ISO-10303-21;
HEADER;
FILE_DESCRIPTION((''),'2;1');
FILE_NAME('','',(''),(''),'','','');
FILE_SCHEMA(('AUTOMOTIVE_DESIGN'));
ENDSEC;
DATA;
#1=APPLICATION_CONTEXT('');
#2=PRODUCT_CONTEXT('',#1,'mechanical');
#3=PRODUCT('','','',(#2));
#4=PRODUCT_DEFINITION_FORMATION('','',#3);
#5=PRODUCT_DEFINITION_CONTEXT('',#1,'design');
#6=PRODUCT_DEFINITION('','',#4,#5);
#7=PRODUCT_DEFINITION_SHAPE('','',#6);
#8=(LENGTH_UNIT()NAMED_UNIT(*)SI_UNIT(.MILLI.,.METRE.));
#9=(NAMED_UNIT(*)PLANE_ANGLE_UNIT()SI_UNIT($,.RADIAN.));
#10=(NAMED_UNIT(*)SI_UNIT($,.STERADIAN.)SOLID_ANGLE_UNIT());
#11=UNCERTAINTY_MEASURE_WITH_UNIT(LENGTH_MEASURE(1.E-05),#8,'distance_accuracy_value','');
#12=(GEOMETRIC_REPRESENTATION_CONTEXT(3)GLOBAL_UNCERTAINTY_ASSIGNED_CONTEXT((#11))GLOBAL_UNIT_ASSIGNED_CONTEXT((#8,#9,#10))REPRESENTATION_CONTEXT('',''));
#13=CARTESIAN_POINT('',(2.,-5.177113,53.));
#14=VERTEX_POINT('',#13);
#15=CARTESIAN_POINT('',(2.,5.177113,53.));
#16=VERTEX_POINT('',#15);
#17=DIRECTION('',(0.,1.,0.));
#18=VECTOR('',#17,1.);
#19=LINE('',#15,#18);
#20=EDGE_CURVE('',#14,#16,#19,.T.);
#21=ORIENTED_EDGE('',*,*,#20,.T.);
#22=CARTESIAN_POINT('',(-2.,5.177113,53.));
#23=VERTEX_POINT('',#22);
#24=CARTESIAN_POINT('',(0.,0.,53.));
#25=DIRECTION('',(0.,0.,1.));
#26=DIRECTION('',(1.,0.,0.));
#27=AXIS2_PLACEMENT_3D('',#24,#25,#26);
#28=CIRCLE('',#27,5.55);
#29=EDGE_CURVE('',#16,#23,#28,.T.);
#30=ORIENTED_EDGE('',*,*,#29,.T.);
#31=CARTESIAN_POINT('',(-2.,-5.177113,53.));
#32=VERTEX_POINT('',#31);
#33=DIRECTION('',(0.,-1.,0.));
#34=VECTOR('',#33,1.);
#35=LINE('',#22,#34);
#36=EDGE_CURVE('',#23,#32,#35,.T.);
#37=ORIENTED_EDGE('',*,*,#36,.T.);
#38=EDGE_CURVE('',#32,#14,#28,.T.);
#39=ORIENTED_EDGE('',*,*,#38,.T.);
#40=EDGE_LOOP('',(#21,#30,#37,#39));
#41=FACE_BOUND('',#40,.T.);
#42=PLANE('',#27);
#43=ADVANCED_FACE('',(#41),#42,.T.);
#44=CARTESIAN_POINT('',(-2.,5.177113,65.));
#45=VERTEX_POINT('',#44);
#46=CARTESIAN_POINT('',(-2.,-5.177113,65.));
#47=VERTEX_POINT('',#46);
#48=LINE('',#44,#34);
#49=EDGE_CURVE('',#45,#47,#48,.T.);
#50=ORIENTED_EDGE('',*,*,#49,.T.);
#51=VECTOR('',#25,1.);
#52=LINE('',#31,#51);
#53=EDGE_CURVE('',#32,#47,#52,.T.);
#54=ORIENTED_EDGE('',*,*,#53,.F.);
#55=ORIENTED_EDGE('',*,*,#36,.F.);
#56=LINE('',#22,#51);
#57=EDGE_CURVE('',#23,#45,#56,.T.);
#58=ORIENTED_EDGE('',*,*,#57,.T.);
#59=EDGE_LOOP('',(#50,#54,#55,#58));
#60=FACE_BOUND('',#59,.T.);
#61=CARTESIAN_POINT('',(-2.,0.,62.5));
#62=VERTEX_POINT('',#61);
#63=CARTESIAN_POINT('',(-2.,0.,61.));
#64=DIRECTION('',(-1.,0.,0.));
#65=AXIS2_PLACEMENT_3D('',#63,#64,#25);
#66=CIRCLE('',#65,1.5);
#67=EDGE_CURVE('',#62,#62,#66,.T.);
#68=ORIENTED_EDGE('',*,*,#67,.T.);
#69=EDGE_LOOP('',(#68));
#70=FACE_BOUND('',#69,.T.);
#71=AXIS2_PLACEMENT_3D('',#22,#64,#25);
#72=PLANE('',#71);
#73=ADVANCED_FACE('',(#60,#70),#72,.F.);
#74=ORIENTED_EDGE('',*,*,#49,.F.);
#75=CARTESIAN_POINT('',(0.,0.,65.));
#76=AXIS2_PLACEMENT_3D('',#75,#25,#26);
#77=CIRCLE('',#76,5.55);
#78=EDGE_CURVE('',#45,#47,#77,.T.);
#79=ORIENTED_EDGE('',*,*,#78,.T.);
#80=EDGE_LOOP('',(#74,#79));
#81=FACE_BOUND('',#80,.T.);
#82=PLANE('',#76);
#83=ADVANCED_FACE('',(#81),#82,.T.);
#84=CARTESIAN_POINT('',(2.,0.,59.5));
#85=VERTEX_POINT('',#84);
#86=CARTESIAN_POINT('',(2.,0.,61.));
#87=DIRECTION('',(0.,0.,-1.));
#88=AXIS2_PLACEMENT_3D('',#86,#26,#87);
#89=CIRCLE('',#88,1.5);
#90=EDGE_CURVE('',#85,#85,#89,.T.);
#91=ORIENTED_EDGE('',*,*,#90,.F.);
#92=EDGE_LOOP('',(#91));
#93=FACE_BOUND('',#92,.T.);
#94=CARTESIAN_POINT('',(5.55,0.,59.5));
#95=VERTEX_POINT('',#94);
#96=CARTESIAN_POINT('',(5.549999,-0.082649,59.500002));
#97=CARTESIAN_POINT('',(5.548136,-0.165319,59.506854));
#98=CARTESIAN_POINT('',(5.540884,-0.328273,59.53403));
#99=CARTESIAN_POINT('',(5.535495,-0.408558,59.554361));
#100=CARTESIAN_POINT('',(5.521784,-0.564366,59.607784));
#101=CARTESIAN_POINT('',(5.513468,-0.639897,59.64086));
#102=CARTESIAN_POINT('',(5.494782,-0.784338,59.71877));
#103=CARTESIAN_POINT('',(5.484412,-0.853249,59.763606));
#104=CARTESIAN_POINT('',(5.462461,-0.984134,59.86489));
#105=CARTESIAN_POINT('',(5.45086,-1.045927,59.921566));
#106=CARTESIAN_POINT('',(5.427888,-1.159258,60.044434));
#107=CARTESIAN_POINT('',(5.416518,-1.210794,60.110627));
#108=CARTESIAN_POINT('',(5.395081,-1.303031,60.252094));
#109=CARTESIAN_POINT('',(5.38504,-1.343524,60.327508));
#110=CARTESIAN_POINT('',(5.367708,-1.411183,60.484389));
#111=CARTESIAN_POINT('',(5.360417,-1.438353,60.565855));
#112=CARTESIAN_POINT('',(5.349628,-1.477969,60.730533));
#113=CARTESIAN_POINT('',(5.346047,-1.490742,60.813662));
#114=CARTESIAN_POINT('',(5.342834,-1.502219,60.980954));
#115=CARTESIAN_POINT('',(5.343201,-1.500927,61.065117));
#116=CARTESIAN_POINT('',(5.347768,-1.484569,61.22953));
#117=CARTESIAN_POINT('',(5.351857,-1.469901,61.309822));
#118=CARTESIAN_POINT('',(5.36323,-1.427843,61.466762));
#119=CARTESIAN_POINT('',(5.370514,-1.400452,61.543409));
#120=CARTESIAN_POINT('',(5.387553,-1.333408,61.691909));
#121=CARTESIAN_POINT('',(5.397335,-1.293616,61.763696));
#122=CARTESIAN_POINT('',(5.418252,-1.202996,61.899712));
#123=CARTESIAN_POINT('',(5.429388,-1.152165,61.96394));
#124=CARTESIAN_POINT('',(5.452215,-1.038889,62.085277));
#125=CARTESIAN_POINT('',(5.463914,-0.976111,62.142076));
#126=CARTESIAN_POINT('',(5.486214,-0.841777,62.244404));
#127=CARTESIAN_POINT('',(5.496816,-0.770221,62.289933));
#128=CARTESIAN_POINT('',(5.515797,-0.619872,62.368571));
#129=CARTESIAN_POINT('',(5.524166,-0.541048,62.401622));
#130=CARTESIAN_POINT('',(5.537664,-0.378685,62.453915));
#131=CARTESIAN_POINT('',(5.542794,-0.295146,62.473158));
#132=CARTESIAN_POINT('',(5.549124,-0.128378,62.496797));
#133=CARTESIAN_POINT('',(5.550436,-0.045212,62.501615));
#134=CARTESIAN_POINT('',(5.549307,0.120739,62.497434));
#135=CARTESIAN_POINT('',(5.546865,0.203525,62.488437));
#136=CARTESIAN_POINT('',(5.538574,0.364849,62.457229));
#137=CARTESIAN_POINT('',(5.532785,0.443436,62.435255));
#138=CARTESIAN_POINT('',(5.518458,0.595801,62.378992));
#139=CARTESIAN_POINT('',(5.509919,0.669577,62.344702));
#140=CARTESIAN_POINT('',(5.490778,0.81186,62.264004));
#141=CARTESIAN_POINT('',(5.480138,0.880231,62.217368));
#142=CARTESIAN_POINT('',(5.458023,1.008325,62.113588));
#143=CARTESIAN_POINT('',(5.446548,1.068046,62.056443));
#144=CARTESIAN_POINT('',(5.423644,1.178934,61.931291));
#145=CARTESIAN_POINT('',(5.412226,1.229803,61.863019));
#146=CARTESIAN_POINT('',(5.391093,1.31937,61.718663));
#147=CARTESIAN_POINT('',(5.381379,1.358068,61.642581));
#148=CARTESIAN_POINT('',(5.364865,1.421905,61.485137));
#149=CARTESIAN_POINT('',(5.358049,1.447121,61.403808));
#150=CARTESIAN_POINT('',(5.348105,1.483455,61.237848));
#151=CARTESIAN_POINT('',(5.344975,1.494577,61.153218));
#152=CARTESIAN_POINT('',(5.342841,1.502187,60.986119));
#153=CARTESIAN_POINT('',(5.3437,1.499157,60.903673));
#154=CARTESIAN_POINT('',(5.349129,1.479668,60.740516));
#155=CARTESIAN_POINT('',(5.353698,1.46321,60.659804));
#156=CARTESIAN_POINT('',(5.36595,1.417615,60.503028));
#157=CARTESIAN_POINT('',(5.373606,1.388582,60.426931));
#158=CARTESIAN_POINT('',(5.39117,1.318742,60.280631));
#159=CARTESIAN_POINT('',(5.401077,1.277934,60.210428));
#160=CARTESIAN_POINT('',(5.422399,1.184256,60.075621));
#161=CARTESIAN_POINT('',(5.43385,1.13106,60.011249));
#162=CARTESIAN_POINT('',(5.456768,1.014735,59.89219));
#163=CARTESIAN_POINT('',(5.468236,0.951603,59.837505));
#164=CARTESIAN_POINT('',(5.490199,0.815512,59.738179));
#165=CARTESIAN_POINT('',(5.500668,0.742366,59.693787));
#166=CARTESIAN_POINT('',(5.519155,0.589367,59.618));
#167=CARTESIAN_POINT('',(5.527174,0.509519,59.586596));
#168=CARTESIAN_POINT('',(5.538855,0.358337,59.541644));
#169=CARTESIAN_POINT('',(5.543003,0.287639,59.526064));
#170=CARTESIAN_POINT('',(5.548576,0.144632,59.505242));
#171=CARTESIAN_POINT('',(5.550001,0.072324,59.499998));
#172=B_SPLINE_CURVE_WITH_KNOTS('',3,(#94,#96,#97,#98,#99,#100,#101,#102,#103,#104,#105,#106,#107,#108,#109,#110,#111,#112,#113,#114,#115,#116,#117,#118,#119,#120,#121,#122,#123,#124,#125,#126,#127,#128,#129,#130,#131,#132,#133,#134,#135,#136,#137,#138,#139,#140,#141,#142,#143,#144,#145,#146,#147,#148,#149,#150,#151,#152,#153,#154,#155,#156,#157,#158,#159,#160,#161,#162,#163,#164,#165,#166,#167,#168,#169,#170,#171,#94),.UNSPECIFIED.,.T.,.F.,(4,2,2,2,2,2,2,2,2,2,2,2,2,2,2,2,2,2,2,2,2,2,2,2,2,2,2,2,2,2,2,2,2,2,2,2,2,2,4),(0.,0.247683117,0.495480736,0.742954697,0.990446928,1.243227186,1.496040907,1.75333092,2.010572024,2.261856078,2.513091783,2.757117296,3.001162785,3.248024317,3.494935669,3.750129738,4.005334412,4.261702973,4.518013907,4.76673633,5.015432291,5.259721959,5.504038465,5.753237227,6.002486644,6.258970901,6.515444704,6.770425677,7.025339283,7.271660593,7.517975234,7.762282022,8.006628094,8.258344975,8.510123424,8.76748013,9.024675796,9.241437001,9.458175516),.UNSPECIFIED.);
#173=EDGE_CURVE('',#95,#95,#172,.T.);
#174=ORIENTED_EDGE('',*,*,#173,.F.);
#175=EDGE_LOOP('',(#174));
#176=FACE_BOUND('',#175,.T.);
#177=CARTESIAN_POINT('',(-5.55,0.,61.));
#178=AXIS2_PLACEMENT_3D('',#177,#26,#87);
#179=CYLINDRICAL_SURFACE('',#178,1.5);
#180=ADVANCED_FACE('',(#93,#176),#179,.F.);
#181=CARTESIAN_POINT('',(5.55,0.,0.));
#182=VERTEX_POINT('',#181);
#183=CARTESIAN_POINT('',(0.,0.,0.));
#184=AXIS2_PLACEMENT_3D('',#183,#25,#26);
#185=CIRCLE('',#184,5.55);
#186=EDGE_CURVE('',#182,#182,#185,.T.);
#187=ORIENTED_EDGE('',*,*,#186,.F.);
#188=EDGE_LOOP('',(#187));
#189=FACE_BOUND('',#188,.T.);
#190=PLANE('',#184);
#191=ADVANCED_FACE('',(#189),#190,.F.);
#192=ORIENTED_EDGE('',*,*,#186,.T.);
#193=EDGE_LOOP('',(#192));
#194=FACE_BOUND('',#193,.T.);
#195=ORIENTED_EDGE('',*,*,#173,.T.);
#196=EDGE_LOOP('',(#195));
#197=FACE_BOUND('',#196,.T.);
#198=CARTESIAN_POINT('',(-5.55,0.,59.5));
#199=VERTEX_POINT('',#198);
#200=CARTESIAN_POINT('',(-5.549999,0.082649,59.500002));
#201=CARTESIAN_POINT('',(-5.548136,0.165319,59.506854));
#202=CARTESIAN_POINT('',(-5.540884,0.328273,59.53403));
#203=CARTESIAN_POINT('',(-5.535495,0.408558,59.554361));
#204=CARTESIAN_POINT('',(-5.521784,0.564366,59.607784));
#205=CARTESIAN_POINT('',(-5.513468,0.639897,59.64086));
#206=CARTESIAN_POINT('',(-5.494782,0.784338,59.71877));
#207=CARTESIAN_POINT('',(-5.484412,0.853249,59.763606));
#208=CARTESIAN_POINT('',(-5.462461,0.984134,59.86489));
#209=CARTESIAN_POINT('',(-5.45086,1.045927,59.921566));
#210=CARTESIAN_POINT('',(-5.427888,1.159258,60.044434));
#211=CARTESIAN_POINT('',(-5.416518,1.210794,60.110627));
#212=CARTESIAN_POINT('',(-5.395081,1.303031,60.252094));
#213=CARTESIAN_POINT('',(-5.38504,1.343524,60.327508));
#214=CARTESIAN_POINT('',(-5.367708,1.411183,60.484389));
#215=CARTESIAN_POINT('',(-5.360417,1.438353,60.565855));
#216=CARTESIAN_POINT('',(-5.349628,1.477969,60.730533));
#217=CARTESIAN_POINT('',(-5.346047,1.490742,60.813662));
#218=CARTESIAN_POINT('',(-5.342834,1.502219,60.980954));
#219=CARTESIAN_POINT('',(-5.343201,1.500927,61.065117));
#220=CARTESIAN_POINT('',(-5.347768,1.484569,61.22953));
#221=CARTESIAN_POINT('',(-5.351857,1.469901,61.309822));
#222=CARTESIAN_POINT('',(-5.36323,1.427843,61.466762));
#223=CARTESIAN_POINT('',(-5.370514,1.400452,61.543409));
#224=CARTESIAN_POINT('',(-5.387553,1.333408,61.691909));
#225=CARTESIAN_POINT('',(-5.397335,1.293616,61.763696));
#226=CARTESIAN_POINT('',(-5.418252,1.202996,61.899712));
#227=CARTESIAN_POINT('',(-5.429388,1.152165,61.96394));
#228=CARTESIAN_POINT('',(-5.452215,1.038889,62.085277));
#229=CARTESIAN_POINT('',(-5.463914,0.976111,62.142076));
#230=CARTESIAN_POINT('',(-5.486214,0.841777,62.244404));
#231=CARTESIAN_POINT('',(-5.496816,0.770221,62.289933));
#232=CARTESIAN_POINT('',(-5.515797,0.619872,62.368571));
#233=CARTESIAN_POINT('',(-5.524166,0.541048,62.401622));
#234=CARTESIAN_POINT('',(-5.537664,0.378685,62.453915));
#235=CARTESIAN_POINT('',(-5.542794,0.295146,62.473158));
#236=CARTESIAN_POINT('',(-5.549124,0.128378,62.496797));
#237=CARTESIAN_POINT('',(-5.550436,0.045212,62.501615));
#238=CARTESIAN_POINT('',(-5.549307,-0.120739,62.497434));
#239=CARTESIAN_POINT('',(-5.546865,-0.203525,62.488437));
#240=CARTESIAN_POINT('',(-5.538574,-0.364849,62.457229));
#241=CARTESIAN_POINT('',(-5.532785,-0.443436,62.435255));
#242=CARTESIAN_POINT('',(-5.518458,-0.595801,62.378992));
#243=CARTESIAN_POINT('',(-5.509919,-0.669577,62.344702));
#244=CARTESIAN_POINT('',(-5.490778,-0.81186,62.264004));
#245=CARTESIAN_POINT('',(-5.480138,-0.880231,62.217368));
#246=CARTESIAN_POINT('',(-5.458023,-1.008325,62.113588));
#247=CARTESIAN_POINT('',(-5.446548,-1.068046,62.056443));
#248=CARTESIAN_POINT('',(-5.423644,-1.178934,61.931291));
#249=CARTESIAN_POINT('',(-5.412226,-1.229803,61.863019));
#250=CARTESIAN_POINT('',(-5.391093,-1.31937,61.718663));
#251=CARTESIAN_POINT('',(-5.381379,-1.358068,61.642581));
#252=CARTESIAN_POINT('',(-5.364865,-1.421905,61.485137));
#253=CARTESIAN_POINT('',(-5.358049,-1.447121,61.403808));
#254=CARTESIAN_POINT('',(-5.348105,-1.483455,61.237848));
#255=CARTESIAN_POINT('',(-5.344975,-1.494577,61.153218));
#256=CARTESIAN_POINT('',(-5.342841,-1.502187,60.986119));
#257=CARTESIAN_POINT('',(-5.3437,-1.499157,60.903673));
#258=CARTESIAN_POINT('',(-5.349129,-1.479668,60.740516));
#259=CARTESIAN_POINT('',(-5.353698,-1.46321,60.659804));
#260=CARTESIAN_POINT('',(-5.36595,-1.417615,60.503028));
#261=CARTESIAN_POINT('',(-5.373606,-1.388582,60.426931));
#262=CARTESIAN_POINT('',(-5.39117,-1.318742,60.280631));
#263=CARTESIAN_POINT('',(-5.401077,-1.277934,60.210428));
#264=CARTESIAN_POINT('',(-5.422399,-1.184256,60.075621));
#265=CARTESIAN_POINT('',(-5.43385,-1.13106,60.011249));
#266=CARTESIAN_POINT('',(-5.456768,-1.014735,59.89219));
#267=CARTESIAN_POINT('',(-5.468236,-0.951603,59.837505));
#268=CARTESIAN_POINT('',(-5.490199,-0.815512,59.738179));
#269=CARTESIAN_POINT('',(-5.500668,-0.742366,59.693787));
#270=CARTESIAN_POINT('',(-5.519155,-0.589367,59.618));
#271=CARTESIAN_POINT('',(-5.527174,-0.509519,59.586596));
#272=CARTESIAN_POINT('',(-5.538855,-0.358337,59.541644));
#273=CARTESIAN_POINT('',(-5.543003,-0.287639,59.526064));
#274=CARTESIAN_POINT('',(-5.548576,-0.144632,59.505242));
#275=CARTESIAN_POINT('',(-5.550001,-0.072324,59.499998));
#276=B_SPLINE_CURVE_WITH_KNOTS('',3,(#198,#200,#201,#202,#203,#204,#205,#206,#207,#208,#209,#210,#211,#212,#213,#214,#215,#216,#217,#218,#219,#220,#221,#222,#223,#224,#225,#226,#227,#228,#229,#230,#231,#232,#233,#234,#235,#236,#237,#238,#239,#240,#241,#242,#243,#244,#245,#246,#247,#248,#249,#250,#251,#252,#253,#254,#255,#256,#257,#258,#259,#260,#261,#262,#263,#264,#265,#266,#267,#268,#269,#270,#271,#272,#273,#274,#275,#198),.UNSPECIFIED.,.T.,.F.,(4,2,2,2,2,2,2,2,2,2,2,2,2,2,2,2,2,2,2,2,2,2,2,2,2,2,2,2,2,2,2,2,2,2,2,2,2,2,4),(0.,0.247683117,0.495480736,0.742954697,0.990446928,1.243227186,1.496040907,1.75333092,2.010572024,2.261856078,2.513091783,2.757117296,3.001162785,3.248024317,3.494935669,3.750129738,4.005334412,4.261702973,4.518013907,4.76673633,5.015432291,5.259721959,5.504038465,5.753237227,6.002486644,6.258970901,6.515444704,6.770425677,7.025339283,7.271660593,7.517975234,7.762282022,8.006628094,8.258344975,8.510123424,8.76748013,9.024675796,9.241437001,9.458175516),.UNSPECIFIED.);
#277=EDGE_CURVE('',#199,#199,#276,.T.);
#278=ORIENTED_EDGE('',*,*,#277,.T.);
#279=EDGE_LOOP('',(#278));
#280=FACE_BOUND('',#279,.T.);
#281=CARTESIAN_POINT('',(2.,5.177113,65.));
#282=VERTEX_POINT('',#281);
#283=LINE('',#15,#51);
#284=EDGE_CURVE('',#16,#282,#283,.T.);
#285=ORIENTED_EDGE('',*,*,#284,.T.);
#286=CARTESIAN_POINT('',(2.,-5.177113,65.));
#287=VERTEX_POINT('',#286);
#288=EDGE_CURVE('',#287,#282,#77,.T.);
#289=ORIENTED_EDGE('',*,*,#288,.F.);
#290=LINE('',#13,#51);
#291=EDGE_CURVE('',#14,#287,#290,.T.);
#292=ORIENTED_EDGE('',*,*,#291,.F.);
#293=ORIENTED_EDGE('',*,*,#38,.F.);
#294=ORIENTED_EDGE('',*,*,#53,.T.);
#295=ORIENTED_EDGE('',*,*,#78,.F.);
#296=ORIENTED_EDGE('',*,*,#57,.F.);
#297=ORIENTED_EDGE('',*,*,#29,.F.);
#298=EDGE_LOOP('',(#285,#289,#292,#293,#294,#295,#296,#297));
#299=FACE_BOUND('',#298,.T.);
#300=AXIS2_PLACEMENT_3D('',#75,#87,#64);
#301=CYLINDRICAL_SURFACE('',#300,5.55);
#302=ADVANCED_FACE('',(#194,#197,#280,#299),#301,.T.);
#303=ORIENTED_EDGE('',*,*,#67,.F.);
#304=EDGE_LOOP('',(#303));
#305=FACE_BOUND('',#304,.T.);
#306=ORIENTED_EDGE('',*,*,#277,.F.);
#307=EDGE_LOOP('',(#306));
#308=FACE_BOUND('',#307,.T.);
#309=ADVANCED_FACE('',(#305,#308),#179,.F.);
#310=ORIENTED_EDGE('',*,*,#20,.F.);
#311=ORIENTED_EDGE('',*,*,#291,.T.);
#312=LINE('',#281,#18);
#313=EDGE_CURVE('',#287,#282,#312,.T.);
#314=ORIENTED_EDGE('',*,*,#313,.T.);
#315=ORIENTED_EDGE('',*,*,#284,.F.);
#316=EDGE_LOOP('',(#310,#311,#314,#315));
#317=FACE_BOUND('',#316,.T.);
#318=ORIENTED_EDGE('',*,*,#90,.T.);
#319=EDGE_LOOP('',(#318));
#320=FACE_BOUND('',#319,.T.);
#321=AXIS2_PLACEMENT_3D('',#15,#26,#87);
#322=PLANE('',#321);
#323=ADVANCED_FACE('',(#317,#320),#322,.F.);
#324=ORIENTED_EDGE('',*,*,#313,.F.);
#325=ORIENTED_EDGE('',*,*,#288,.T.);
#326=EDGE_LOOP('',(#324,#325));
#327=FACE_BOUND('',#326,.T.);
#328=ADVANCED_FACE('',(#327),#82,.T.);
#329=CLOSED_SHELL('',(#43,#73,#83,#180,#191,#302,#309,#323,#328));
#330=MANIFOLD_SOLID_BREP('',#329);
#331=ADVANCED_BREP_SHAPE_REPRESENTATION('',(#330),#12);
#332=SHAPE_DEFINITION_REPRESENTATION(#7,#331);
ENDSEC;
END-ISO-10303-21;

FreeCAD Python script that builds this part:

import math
import FreeCAD as App
import Part
import Sketcher
Q = App.Units.Quantity

doc = App.newDocument("Part")
body = doc.addObject("PartDesign::Body", "Body")

# Sketch on XY plane
sketch1 = body.newObject("Sketcher::SketchObject", "Sketch")
sketch1.AttachmentSupport = (doc.getObject("XY_Plane"), [""])
sketch1.MapMode = "FlatFace"
sketch1.addGeometry(Part.Circle(App.Vector(0, 0, 0), App.Vector(0, 0, 1), 6), False)
sketch1.addConstraint([
    Sketcher.Constraint("Coincident", 0, 3, -1, 1),
    Sketcher.Constraint("Diameter", 0, Q("11.1 mm")),
])
pad1 = body.newObject("PartDesign::Pad", "Pad")
pad1.Profile = sketch1
pad1.Length = 65

# Sketch on XY plane
sketch2 = body.newObject("Sketcher::SketchObject", "Sketch001")
sketch2.AttachmentSupport = (doc.getObject("XY_Plane"), [""])
sketch2.MapMode = "FlatFace"
sketch2.AttachmentOffset = App.Placement(App.Vector(0, 0, 65), App.Rotation())
sketch2.addGeometry([
    Part.LineSegment(App.Vector(-2, 5.2, 0), App.Vector(-2, -5.2, 0)),
    Part.ArcOfCircle(Part.Circle(App.Vector(0, 0, 0), App.Vector(0, 0, 1), 5.5), math.radians(-111), math.radians(-69)),
    Part.LineSegment(App.Vector(2, -5.2, 0), App.Vector(2, 5.2, 0)),
    Part.ArcOfCircle(Part.Circle(App.Vector(0, 0, 0), App.Vector(0, 0, 1), 5.5), math.radians(69), math.radians(111)),
], False)
sketch2.addConstraint([
    Sketcher.Constraint("Coincident", 0, 2, 1, 1),
    Sketcher.Constraint("Coincident", 1, 2, 2, 1),
    Sketcher.Constraint("Coincident", 2, 2, 3, 1),
    Sketcher.Constraint("Coincident", 3, 2, 0, 1),
    Sketcher.Constraint("Vertical", 0),
    Sketcher.Constraint("Vertical", 2),
    Sketcher.Constraint("Coincident", 1, 3, -1, 1),
    Sketcher.Constraint("Coincident", 3, 3, -1, 1),
    Sketcher.Constraint("Equal", 1, 3),
    Sketcher.Constraint("Horizontal", 0, 2, 1, 2),
    Sketcher.Constraint("Radius", 1, Q("5.55 mm")),
    Sketcher.Constraint("DistanceX", 0, 2, -1, 1, Q("2 mm")),
])
pocket1 = body.newObject("PartDesign::Pocket", "Pocket")
pocket1.Profile = sketch2
pocket1.Length = 12

# Sketch on YZ plane
sketch3 = body.newObject("Sketcher::SketchObject", "Sketch002")
sketch3.AttachmentSupport = (doc.getObject("YZ_Plane"), [""])
sketch3.MapMode = "FlatFace"
sketch3.addGeometry(Part.Circle(App.Vector(0, 61, 0), App.Vector(0, 0, 1), 1.5), False)
sketch3.addConstraint([
    Sketcher.Constraint("PointOnObject", 0, 3, -2),
    Sketcher.Constraint("Diameter", 0, Q("3 mm")),
    Sketcher.Constraint("DistanceY", -1, 1, 0, 3, Q("61 mm")),
])
pocket2 = body.newObject("PartDesign::Pocket", "Pocket001")
pocket2.Profile = sketch3
pocket2.Type = "ThroughAll"
pocket2.Midplane = True

doc.recompute()
